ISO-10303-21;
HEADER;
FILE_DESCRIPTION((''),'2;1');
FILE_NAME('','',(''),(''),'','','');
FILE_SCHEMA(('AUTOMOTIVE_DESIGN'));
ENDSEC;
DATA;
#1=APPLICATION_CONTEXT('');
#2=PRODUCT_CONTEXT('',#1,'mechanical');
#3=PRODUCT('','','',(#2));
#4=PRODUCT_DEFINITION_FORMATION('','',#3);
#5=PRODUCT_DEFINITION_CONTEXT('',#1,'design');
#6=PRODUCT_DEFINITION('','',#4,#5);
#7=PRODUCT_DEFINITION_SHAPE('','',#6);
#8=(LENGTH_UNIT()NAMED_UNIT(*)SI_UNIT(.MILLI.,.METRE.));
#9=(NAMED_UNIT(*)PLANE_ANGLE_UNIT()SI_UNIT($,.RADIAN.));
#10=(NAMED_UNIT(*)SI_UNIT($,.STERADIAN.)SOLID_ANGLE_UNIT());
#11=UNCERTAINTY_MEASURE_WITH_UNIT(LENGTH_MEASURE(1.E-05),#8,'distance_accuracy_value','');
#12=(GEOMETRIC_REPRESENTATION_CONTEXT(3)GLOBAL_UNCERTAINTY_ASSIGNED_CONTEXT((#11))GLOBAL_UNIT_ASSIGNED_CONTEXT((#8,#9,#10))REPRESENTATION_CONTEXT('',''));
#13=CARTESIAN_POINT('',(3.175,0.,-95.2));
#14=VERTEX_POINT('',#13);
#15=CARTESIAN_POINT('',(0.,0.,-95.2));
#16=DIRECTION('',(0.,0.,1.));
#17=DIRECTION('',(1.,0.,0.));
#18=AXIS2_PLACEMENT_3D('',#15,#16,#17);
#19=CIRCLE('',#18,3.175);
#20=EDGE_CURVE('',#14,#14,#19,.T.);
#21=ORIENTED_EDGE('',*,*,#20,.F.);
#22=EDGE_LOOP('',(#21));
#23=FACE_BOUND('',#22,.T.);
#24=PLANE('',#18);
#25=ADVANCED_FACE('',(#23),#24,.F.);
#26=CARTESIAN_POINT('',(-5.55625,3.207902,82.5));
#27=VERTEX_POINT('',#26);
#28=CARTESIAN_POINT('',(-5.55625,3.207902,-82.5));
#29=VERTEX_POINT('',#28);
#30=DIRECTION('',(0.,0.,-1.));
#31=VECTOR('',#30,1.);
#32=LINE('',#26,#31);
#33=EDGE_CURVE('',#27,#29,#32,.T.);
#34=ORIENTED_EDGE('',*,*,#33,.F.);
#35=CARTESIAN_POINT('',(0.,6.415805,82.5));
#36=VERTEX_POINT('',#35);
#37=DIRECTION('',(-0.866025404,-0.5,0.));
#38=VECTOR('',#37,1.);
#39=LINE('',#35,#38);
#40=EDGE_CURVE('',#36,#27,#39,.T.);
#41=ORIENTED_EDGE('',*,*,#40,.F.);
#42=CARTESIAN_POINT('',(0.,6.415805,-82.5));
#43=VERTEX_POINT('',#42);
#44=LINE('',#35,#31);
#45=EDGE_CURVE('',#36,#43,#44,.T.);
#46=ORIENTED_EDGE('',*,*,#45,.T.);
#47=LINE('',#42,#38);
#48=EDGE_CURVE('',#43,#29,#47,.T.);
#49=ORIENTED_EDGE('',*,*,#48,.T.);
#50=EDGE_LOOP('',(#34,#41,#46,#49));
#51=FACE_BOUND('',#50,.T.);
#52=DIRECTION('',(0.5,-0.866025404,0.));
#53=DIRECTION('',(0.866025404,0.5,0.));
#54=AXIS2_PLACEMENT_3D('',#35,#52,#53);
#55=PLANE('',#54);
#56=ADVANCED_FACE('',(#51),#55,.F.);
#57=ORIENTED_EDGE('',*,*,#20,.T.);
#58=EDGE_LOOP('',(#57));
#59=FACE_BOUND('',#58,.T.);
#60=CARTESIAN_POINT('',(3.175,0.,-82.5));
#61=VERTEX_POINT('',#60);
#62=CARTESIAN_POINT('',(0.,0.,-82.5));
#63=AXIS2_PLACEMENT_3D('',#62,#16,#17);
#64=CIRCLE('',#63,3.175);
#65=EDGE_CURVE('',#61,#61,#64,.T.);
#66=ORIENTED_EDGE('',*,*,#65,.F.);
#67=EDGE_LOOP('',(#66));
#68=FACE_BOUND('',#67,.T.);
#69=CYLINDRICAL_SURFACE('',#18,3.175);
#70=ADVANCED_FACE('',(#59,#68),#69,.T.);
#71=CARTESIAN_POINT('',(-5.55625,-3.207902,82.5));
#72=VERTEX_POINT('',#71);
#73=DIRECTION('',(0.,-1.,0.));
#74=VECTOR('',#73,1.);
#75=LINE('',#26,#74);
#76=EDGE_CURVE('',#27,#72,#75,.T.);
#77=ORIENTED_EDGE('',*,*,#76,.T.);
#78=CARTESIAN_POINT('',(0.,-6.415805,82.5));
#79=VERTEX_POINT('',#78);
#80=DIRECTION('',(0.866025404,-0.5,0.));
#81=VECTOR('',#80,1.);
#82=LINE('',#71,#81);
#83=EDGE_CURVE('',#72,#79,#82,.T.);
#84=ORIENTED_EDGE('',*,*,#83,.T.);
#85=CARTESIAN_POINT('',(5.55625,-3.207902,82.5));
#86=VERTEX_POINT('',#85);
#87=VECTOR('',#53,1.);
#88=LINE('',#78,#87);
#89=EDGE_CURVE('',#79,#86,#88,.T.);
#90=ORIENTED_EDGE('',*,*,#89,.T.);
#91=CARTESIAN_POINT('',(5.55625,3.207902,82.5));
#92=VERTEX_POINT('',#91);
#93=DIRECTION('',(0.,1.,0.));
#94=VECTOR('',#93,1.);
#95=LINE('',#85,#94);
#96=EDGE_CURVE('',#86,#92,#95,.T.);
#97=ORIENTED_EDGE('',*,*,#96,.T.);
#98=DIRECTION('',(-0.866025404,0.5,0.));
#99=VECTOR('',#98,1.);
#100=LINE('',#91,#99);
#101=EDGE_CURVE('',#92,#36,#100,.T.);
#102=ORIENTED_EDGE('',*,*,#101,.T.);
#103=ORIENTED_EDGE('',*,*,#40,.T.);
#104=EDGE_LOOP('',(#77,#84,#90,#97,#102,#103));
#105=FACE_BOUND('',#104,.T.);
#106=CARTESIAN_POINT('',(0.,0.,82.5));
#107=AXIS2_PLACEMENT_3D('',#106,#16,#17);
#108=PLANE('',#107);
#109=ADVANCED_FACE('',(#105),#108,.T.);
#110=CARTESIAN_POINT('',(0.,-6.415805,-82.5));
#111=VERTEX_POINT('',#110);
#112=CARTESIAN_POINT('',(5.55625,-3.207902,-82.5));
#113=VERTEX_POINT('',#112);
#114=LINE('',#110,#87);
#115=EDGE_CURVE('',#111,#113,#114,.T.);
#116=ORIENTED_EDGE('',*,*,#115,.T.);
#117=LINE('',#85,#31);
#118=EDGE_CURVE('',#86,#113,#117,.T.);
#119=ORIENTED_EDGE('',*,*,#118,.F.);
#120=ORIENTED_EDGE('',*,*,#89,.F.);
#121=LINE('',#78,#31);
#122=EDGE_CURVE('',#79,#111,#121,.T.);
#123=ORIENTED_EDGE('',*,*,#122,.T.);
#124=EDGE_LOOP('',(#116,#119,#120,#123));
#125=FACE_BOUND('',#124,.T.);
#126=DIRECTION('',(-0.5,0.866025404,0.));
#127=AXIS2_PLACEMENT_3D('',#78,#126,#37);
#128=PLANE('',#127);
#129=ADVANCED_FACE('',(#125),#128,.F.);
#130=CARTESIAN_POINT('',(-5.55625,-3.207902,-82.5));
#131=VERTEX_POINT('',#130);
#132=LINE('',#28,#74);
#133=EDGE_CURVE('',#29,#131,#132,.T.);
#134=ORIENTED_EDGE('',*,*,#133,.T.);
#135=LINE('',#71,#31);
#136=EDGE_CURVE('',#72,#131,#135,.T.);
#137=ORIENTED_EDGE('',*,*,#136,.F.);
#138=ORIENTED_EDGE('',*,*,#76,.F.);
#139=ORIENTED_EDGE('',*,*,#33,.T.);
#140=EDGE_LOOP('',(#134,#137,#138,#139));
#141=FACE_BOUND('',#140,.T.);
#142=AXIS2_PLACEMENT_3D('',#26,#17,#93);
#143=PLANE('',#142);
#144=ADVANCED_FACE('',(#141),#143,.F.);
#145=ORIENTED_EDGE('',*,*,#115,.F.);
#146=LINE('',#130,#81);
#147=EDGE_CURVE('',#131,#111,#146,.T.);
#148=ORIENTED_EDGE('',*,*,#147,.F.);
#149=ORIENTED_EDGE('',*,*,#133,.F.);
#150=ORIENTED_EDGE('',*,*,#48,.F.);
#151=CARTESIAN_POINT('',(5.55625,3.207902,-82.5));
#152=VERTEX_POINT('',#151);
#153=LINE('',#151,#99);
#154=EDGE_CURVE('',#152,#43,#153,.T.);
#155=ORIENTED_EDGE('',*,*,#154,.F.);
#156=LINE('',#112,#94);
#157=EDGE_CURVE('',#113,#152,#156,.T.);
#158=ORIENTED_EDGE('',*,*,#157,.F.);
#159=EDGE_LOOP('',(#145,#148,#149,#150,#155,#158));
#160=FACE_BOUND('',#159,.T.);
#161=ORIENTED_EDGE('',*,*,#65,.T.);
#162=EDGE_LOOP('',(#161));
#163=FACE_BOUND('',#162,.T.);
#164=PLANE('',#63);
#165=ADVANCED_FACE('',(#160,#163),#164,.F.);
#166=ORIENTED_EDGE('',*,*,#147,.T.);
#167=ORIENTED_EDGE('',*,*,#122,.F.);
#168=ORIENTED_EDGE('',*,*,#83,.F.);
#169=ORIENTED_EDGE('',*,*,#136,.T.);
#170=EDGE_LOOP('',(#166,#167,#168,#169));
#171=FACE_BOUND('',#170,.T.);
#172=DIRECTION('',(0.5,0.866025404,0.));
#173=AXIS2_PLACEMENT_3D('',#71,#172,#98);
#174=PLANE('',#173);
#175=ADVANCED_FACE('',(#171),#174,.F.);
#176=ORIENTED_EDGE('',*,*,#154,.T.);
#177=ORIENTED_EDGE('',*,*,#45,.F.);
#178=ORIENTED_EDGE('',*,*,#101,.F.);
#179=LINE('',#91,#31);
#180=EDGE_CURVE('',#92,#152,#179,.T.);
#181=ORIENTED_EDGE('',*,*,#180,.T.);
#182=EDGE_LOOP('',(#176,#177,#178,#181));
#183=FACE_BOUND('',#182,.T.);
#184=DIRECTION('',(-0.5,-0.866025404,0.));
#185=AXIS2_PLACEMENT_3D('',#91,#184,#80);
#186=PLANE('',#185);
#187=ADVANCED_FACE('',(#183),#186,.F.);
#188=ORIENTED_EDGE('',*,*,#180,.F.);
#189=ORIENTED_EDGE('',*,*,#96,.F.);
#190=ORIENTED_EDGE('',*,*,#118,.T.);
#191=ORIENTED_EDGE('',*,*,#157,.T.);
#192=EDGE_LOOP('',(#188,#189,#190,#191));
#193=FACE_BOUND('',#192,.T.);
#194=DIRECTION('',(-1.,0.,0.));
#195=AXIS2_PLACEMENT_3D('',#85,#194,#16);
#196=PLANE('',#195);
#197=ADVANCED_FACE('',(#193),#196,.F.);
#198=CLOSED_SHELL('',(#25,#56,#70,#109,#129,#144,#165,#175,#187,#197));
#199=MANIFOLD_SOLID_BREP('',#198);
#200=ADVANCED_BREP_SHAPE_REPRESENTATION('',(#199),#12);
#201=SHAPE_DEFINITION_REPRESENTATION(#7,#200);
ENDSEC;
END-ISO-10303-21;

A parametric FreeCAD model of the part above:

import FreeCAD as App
import Part
import Sketcher
Q = App.Units.Quantity


def add_polygon(sketch, points):
    """Adds a closed chain of lines whose ends are joined by coincident constraints."""
    first, n = sketch.GeometryCount, len(points)
    for a, b in zip(points, points[1:] + points[:1]):
        sketch.addGeometry(Part.LineSegment(App.Vector(*a, 0), App.Vector(*b, 0)), False)
    for i in range(n):
        sketch.addConstraint(Sketcher.Constraint("Coincident", first + i, 2, first + (i + 1) % n, 1))

doc = App.newDocument("Part")
body = doc.addObject("PartDesign::Body", "Body")

# Sketch on XY plane
sketch1 = body.newObject("Sketcher::SketchObject", "Sketch")
sketch1.AttachmentSupport = (doc.getObject("XY_Plane"), [""])
sketch1.MapMode = "FlatFace"
add_polygon(sketch1, [(-6, -3), (0, -6), (6, -3), (6, 3), (0, 6), (-6, 3)])  # lines 0-5
sketch1.addConstraint(Sketcher.Constraint("Vertical", 2))
sketch1.addConstraint(Sketcher.Constraint("Vertical", 5))
sketch1.addConstraint(Sketcher.Constraint("Symmetric", 0, 2, 3, 2, -1, 1))
sketch1.addConstraint(Sketcher.Constraint("Symmetric", 1, 2, 4, 2, -1, 1))
sketch1.addConstraint(Sketcher.Constraint("PointOnObject", 0, 2, -2))
sketch1.addConstraint(Sketcher.Constraint("Parallel", 0, 3))
sketch1.addConstraint(Sketcher.Constraint("Horizontal", 2, 2, 4, 2))
sketch1.addConstraint(Sketcher.Constraint("Angle", 0, Q("-30 deg")))
sketch1.addConstraint(Sketcher.Constraint("DistanceX", -1, 1, 1, 2, Q("0.21875 in")))
sketch1.addConstraint(Sketcher.Constraint("DistanceY", 2, 1, 2, 2, 6.415805))
pad1 = body.newObject("PartDesign::Pad", "Pad")
pad1.Profile = sketch1
pad1.Type = "TwoLengths"
pad1.Length = 82.5
pad1.Length2 = 82.5

# Sketch on XY plane
sketch2 = body.newObject("Sketcher::SketchObject", "Sketch001")
sketch2.AttachmentSupport = (doc.getObject("XY_Plane"), [""])
sketch2.MapMode = "FlatFace"
sketch2.AttachmentOffset = App.Placement(App.Vector(0, 0, -82.5), App.Rotation())
sketch2.addGeometry(Part.Circle(App.Vector(0, 0, 0), App.Vector(0, 0, 1), 3.2), False)
sketch2.addConstraint(Sketcher.Constraint("Coincident", 0, 3, -1, 1))
sketch2.addConstraint(Sketcher.Constraint("Diameter", 0, Q("0.25 in")))
pad2 = body.newObject("PartDesign::Pad", "Pad001")
pad2.Profile = sketch2
pad2.Length = Q("0.5 in")
pad2.Reversed = True

doc.recompute()
